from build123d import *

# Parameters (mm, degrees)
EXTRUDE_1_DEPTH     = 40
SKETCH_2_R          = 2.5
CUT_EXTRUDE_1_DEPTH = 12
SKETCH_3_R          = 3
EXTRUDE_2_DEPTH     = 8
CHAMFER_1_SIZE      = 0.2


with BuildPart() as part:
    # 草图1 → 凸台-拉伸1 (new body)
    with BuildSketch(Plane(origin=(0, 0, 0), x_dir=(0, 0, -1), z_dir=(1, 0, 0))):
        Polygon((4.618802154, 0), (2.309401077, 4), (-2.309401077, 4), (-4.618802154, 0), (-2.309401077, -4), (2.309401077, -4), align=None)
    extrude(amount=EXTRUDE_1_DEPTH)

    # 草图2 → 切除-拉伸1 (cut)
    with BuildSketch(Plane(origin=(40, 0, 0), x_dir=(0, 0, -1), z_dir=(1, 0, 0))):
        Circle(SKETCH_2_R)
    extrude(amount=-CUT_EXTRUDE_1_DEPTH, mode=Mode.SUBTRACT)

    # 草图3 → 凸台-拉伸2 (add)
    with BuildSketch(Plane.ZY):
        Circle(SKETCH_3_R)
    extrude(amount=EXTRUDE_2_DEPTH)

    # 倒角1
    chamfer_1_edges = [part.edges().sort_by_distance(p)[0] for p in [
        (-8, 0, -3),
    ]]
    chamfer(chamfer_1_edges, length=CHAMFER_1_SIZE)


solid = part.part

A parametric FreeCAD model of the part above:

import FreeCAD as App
import Part
import Sketcher

V = App.Vector
Q = App.Units.Quantity


def edges_at(feature, points):
    """Names of the edges that pass closest to the given points."""
    edges = feature.Shape.Edges
    near = lambda p: min(range(len(edges)), key=lambda i: edges[i].distToShape(Part.Vertex(*p))[0])
    return sorted({f"Edge{near(p) + 1}" for p in points})


def add_polygon(sketch, points):
    """Adds a closed chain of lines whose ends are joined by coincident constraints."""
    first, n = sketch.GeometryCount, len(points)
    for a, b in zip(points, points[1:] + points[:1]):
        sketch.addGeometry(Part.LineSegment(App.Vector(*a, 0), App.Vector(*b, 0)), False)
    for i in range(n):
        sketch.addConstraint(Sketcher.Constraint("Coincident", first + i, 2, first + (i + 1) % n, 1))

doc = App.newDocument("Part")
body = doc.addObject("PartDesign::Body", "Body")

sketch1 = doc.addObject("Sketcher::SketchObject", "Sketch")
body.addObject(sketch1)
sketch1.AttachmentSupport = (doc.YZ_Plane, [""])
sketch1.MapMode = "FlatFace"
add_polygon(sketch1, [(0, -4.618802), (4, -2.309401), (4, 2.309401), (0, 4.618802), (-4, 2.309401), (-4, -2.309401)])
sketch1.addConstraint(Sketcher.Constraint("Vertical", 1))
sketch1.addConstraint(Sketcher.Constraint("Vertical", 4))
sketch1.addConstraint(Sketcher.Constraint("Symmetric", 0, 2, 3, 2, -1, 1))
sketch1.addConstraint(Sketcher.Constraint("Symmetric", 2, 2, 5, 2, -1, 1))
sketch1.addConstraint(Sketcher.Constraint("PointOnObject", 2, 2, -2))
sketch1.addConstraint(Sketcher.Constraint("Parallel", 2, 5))
sketch1.addConstraint(Sketcher.Constraint("Horizontal", 1, 2, 3, 2))
sketch1.addConstraint(Sketcher.Constraint("Angle", 0, Q("30 deg")))
sketch1.addConstraint(Sketcher.Constraint("DistanceX", -1, 1, 0, 2, 4.0))
sketch1.addConstraint(Sketcher.Constraint("DistanceY", 0, 2, -1, 1, 2.309401))
pad1 = doc.addObject("PartDesign::Pad", "Pad")
body.addObject(pad1)
pad1.Profile = sketch1
pad1.Length = 40

sketch2 = doc.addObject("Sketcher::SketchObject", "Sketch001")
body.addObject(sketch2)
sketch2.AttachmentSupport = (doc.YZ_Plane, [""])
sketch2.MapMode = "FlatFace"
sketch2.AttachmentOffset = App.Placement(V(0, 0, 40), App.Rotation())
sketch2.addGeometry(Part.Circle(V(0, 0, 0), V(0, 0, 1), 2.5), False)
sketch2.addConstraint(Sketcher.Constraint("Coincident", 0, 3, -1, 1))
sketch2.addConstraint(Sketcher.Constraint("Diameter", 0, 5.0))
pocket1 = doc.addObject("PartDesign::Pocket", "Pocket")
body.addObject(pocket1)
pocket1.Profile = sketch2
pocket1.Length = 12

sketch3 = doc.addObject("Sketcher::SketchObject", "Sketch002")
body.addObject(sketch3)
sketch3.AttachmentSupport = (doc.YZ_Plane, [""])
sketch3.MapMode = "FlatFace"
sketch3.addGeometry(Part.Circle(V(0, 0, 0), V(0, 0, 1), 3), False)
sketch3.addConstraint(Sketcher.Constraint("Coincident", 0, 3, -1, 1))
sketch3.addConstraint(Sketcher.Constraint("Diameter", 0, 6.0))
pad2 = doc.addObject("PartDesign::Pad", "Pad001")
body.addObject(pad2)
pad2.Profile = sketch3
pad2.Length = 8
pad2.Reversed = True
doc.recompute()

chamfer = doc.addObject("PartDesign::Chamfer", "Chamfer")
body.addObject(chamfer)
chamfer.Base = (pad2, edges_at(pad2, [(-8, 0, -3)]))
chamfer.Size = 0.2

doc.recompute()
